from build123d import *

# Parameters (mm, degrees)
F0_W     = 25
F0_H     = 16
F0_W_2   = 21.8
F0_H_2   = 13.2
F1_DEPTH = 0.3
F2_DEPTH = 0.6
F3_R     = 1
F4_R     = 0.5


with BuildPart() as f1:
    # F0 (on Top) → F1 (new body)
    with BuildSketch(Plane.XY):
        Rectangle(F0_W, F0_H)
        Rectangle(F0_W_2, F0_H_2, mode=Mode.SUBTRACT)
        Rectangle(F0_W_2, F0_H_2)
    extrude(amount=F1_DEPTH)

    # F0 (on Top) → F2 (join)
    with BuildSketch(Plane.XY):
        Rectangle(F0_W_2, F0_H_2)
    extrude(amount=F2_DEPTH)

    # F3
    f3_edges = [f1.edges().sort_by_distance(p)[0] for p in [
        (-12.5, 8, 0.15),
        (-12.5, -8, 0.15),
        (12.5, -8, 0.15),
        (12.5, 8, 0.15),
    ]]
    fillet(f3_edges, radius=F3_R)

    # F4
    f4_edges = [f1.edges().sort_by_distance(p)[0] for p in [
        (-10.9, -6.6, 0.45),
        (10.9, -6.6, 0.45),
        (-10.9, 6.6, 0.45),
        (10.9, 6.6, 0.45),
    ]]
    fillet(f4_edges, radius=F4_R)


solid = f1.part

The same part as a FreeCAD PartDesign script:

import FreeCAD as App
import Part
import Sketcher


def edges_at(feature, points):
    """Names of the edges that pass closest to the given points."""
    edges = feature.Shape.Edges
    near = lambda p: min(range(len(edges)), key=lambda i: edges[i].distToShape(Part.Vertex(*p))[0])
    return sorted({f"Edge{near(p) + 1}" for p in points})


def add_polygon(sketch, points):
    """Adds a closed chain of lines whose ends are joined by coincident constraints."""
    first, n = sketch.GeometryCount, len(points)
    for a, b in zip(points, points[1:] + points[:1]):
        sketch.addGeometry(Part.LineSegment(App.Vector(*a, 0), App.Vector(*b, 0)), False)
    for i in range(n):
        sketch.addConstraint(Sketcher.Constraint("Coincident", first + i, 2, first + (i + 1) % n, 1))

doc = App.newDocument("Part")
body = doc.addObject("PartDesign::Body", "Body")

# Sketch on XY plane
sketch1 = body.newObject("Sketcher::SketchObject", "Sketch")
sketch1.AttachmentSupport = (doc.getObject("XY_Plane"), [""])
sketch1.MapMode = "FlatFace"
add_polygon(sketch1, [(-12, 8), (-12, -8), (12, -8), (12, 8)])  # lines 0-3
sketch1.addConstraint([
    Sketcher.Constraint("Vertical", 0),
    Sketcher.Constraint("Horizontal", 1),
    Sketcher.Constraint("Vertical", 2),
    Sketcher.Constraint("Horizontal", 3),
    Sketcher.Constraint("Symmetric", 0, 2, 2, 2, -1, 1),
    Sketcher.Constraint("DistanceX", 1, 1, 1, 2, 25.0),
    Sketcher.Constraint("DistanceY", 0, 2, 0, 1, 16.0),
])
pad1 = body.newObject("PartDesign::Pad", "Pad")
pad1.Profile = sketch1
pad1.Length = 0.3

# Sketch on XY plane
sketch2 = body.newObject("Sketcher::SketchObject", "Sketch001")
sketch2.AttachmentSupport = (doc.getObject("XY_Plane"), [""])
sketch2.MapMode = "FlatFace"
add_polygon(sketch2, [(-11, 7), (-11, -7), (11, -7), (11, 7)])  # lines 0-3
sketch2.addConstraint([
    Sketcher.Constraint("Vertical", 0),
    Sketcher.Constraint("Horizontal", 1),
    Sketcher.Constraint("Vertical", 2),
    Sketcher.Constraint("Horizontal", 3),
    Sketcher.Constraint("Symmetric", 0, 2, 2, 2, -1, 1),
    Sketcher.Constraint("DistanceX", 1, 1, 1, 2, 21.8),
    Sketcher.Constraint("DistanceY", 0, 2, 0, 1, 13.2),
])
pad2 = body.newObject("PartDesign::Pad", "Pad001")
pad2.Profile = sketch2
pad2.Length = 0.6
doc.recompute()

fillet = body.newObject("PartDesign::Fillet", "Fillet")
fillet.Base = (pad2, edges_at(pad2, [
    (-12.5, 8, 0.15),
    (-12.5, -8, 0.15),
    (12.5, -8, 0.15),
    (12.5, 8, 0.15),
]))
fillet.Radius = 1
doc.recompute()

fillet2 = body.newObject("PartDesign::Fillet", "Fillet001")
fillet2.Base = (fillet, edges_at(fillet, [
    (-10.9, -6.6, 0.45),
    (10.9, -6.6, 0.45),
    (-10.9, 6.6, 0.45),
    (10.9, 6.6, 0.45),
]))
fillet2.Radius = 0.5

doc.recompute()
